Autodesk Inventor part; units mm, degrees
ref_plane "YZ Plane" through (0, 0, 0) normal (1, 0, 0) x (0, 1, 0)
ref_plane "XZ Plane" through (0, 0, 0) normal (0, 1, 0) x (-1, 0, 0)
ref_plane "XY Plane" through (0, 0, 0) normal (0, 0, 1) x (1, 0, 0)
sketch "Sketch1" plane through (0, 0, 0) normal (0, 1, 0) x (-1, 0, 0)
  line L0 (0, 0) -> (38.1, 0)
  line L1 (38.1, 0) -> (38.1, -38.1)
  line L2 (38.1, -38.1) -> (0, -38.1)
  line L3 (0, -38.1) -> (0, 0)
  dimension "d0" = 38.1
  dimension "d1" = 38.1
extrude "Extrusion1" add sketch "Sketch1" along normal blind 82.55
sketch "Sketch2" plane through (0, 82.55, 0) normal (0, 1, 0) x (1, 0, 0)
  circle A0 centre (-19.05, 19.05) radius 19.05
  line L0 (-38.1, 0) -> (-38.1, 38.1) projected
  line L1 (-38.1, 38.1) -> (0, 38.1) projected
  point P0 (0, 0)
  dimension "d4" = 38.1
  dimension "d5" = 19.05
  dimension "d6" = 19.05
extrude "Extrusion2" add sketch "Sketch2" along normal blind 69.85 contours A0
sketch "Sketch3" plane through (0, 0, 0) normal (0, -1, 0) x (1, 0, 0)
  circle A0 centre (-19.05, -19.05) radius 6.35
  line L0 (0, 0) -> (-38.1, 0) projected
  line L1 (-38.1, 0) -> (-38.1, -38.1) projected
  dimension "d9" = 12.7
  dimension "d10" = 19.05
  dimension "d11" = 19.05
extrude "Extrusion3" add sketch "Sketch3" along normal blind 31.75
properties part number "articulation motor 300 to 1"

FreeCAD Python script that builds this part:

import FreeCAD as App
import Part
import Sketcher

V = App.Vector
Q = App.Units.Quantity

doc = App.newDocument("Part")
body = doc.addObject("PartDesign::Body", "Body")

# Sketch on XZ plane
sketch1 = body.newObject("Sketcher::SketchObject", "Sketch")
sketch1.AttachmentSupport = (doc.getObject("XZ_Plane"), [""])
sketch1.MapMode = "FlatFace"
sketch1.addGeometry([
    Part.LineSegment(V(-38, 0, 0), V(0, 0, 0)),
    Part.LineSegment(V(0, 0, 0), V(0, -38, 0)),
    Part.LineSegment(V(0, -38, 0), V(-38, -38, 0)),
    Part.LineSegment(V(-38, -38, 0), V(-38, 0, 0)),
], False)
sketch1.addConstraint([
    Sketcher.Constraint("Coincident", 0, 2, 1, 1),
    Sketcher.Constraint("Coincident", 1, 2, 2, 1),
    Sketcher.Constraint("Coincident", 2, 2, 3, 1),
    Sketcher.Constraint("Coincident", 3, 2, 0, 1),
    Sketcher.Constraint("Horizontal", 0),
    Sketcher.Constraint("Vertical", 1),
    Sketcher.Constraint("Horizontal", 2),
    Sketcher.Constraint("Vertical", 3),
    Sketcher.Constraint("Coincident", 0, 2, -1, 1),
    Sketcher.Constraint("Equal", 2, 1),
    Sketcher.Constraint("DistanceX", 0, 1, 0, 2, Q("1.5 in")),
])
pad1 = body.newObject("PartDesign::Pad", "Pad")
pad1.Profile = sketch1
pad1.Length = Q("3.25 in")
pad1.Reversed = True

# Sketch on XZ plane
sketch2 = body.newObject("Sketcher::SketchObject", "Sketch001")
sketch2.AttachmentSupport = (doc.getObject("XZ_Plane"), [""])
sketch2.MapMode = "FlatFace"
sketch2.AttachmentOffset = App.Placement(V(0, 0, -3.25 * 25.4), App.Rotation())
sketch2.addGeometry(Part.Circle(V(-19, -19, 0), V(0, 0, 1), 19), False)
sketch2.addConstraint([
    Sketcher.Constraint("Diameter", 0, Q("1.5 in")),
    Sketcher.Constraint("DistanceX", 0, 3, -1, 1, Q("0.75 in")),
    Sketcher.Constraint("DistanceY", 0, 3, -1, 1, Q("0.75 in")),
])
pad2 = body.newObject("PartDesign::Pad", "Pad001")
pad2.Profile = sketch2
pad2.Length = Q("2.75 in")
pad2.Reversed = True

# Sketch on XZ plane
sketch3 = body.newObject("Sketcher::SketchObject", "Sketch002")
sketch3.AttachmentSupport = (doc.getObject("XZ_Plane"), [""])
sketch3.MapMode = "FlatFace"
sketch3.addGeometry(Part.Circle(V(-19, -19, 0), V(0, 0, 1), 6), False)
sketch3.addConstraint([
    Sketcher.Constraint("Diameter", 0, Q("0.5 in")),
    Sketcher.Constraint("DistanceX", 0, 3, -1, 1, Q("0.75 in")),
    Sketcher.Constraint("DistanceY", 0, 3, -1, 1, Q("0.75 in")),
])
pad3 = body.newObject("PartDesign::Pad", "Pad002")
pad3.Profile = sketch3
pad3.Length = Q("1.25 in")

doc.recompute()
